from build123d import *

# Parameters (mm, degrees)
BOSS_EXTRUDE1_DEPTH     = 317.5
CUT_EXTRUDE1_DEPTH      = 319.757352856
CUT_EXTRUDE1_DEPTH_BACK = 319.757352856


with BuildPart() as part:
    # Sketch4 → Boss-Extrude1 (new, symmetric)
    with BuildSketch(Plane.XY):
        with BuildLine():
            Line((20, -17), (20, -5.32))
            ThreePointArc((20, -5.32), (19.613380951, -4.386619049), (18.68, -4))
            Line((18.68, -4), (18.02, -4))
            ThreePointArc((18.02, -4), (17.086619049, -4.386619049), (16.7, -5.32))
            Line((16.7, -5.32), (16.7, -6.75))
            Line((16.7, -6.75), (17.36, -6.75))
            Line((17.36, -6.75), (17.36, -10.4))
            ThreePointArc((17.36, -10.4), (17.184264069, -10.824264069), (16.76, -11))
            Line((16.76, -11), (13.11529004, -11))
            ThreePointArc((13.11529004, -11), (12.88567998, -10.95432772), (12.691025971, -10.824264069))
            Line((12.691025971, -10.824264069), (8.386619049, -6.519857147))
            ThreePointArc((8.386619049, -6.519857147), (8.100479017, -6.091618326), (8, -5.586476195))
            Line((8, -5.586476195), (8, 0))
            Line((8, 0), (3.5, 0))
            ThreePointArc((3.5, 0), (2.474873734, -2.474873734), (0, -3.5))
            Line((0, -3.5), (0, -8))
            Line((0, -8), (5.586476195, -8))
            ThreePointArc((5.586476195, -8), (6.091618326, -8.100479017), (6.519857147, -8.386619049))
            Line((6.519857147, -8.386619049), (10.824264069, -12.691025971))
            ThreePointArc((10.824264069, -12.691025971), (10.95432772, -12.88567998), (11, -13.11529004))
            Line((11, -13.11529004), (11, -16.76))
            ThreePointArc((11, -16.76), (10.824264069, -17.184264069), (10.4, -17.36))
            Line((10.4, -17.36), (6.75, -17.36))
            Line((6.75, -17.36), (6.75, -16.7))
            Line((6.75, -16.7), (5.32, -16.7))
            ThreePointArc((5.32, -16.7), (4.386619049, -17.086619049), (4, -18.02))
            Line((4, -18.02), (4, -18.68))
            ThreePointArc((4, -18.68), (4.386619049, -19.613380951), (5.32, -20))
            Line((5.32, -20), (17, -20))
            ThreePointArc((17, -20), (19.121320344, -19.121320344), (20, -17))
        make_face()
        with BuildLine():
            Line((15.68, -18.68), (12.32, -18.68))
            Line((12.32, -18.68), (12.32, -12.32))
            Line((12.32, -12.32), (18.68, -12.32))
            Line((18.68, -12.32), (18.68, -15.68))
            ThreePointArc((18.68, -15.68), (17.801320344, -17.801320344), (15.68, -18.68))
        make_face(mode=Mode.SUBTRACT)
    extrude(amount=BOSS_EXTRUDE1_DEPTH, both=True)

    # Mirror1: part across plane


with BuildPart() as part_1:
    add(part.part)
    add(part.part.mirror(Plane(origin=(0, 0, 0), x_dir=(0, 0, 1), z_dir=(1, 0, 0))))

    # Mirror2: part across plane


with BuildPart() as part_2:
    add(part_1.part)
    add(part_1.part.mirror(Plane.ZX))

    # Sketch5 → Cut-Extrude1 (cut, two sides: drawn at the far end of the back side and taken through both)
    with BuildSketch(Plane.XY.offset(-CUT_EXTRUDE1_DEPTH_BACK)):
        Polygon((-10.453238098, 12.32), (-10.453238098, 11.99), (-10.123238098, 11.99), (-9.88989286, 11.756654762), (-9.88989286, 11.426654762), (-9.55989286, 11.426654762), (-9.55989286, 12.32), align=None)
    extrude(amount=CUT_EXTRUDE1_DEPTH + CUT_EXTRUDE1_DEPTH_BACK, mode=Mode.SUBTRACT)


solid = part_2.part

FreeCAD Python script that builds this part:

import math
import FreeCAD as App
import Part
import Sketcher
from FreeCAD import Vector
Q = App.Units.Quantity

doc = App.newDocument("Part")
params = doc.addObject("Spreadsheet::Sheet", "Params")
for row, (alias, value) in enumerate([
    ("sketch1_radius", "3 mm"),
    ("sketch1_radius2", "0.6 mm"),
    ("sketch1_radius3", "3.5 mm"),
    ("sketch1_radius4", "1.32 mm"),
    ("sketch1_width", "4.5 mm"),
    ("pad1_length", "635 mm"),
    ("sketch2_width", "0.33 mm"),
    ("sketch2_length", "0.33 mm"),
], start=1):
    params.set(f"A{row}", alias)
    params.set(f"B{row}", "=" + value)
    params.setAlias(f"B{row}", alias)

body = doc.addObject("PartDesign::Body", "Body")

# Sketch on XY plane
sketch1 = body.newObject("Sketcher::SketchObject", "Sketch")
sketch1.AttachmentSupport = (doc.getObject("XY_Plane"), [""])
sketch1.MapMode = "FlatFace"
sketch1.addGeometry([
    Part.LineSegment(Vector(20, -17, 0), Vector(20, -5.32, 0)),  # 0
    Part.ArcOfCircle(Part.Circle(Vector(18.68, -5.32, 0), Vector(0, 0, 1), 1.32), math.radians(0), math.radians(90)),  # 1
    Part.LineSegment(Vector(18.68, -4, 0), Vector(18.02, -4, 0)),  # 2
    Part.ArcOfCircle(Part.Circle(Vector(18.02, -5.32, 0), Vector(0, 0, 1), 1.32), math.radians(90), math.radians(180)),  # 3
    Part.LineSegment(Vector(16.7, -5.32, 0), Vector(16.7, -6.75, 0)),  # 4
    Part.LineSegment(Vector(16.7, -6.75, 0), Vector(17.36, -6.75, 0)),  # 5
    Part.LineSegment(Vector(17.36, -6.75, 0), Vector(17.36, -10.4, 0)),  # 6
    Part.ArcOfCircle(Part.Circle(Vector(16.76, -10.4, 0), Vector(0, 0, 1), 0.6), math.radians(-90), math.radians(0)),  # 7
    Part.LineSegment(Vector(16.76, -11, 0), Vector(13.12, -11, 0)),  # 8
    Part.ArcOfCircle(Part.Circle(Vector(13.12, -10.4, 0), Vector(0, 0, 1), 0.6), math.radians(-135), math.radians(-90)),  # 9
    Part.LineSegment(Vector(12.69, -10.82, 0), Vector(8.39, -6.52, 0)),  # 10
    Part.ArcOfCircle(Part.Circle(Vector(9.32, -5.59, 0), Vector(0, 0, 1), 1.32), math.radians(180), math.radians(225)),  # 11
    Part.LineSegment(Vector(8, -5.59, 0), Vector(8, 0, 0)),  # 12
    Part.LineSegment(Vector(8, 0, 0), Vector(3.5, 0, 0)),  # 13
    Part.ArcOfCircle(Part.Circle(Vector(0, 0, 0), Vector(0, 0, 1), 3.5), math.radians(-90), math.radians(0)),  # 14
    Part.LineSegment(Vector(0, -3.5, 0), Vector(0, -8, 0)),  # 15
    Part.LineSegment(Vector(0, -8, 0), Vector(5.59, -8, 0)),  # 16
    Part.ArcOfCircle(Part.Circle(Vector(5.59, -9.32, 0), Vector(0, 0, 1), 1.32), math.radians(45), math.radians(90)),  # 17
    Part.LineSegment(Vector(6.52, -8.39, 0), Vector(10.82, -12.69, 0)),  # 18
    Part.ArcOfCircle(Part.Circle(Vector(10.4, -13.12, 0), Vector(0, 0, 1), 0.6), math.radians(0), math.radians(45)),  # 19
    Part.LineSegment(Vector(11, -13.12, 0), Vector(11, -16.76, 0)),  # 20
    Part.ArcOfCircle(Part.Circle(Vector(10.4, -16.76, 0), Vector(0, 0, 1), 0.6), math.radians(-90), math.radians(0)),  # 21
    Part.LineSegment(Vector(10.4, -17.36, 0), Vector(6.75, -17.36, 0)),  # 22
    Part.LineSegment(Vector(6.75, -17.36, 0), Vector(6.75, -16.7, 0)),  # 23
    Part.LineSegment(Vector(6.75, -16.7, 0), Vector(5.32, -16.7, 0)),  # 24
    Part.ArcOfCircle(Part.Circle(Vector(5.32, -18.02, 0), Vector(0, 0, 1), 1.32), math.radians(90), math.radians(180)),  # 25
    Part.LineSegment(Vector(4, -18.02, 0), Vector(4, -18.68, 0)),  # 26
    Part.ArcOfCircle(Part.Circle(Vector(5.32, -18.68, 0), Vector(0, 0, 1), 1.32), math.radians(-180), math.radians(-90)),  # 27
    Part.LineSegment(Vector(5.32, -20, 0), Vector(17, -20, 0)),  # 28
    Part.ArcOfCircle(Part.Circle(Vector(17, -17, 0), Vector(0, 0, 1), 3), math.radians(-90), math.radians(0)),  # 29
    Part.ArcOfCircle(Part.Circle(Vector(15.68, -15.68, 0), Vector(0, 0, 1), 3), math.radians(-90), math.radians(0)),  # 30
    Part.LineSegment(Vector(15.68, -18.68, 0), Vector(12.32, -18.68, 0)),  # 31
    Part.LineSegment(Vector(12.32, -18.68, 0), Vector(12.32, -12.32, 0)),  # 32
    Part.LineSegment(Vector(12.32, -12.32, 0), Vector(18.68, -12.32, 0)),  # 33
    Part.LineSegment(Vector(18.68, -12.32, 0), Vector(18.68, -15.68, 0)),  # 34
], False)
sketch1.addConstraint([
    Sketcher.Constraint("Tangent", 0, 2, 1, 1),
    Sketcher.Constraint("Tangent", 1, 2, 2, 1),
    Sketcher.Constraint("Tangent", 2, 2, 3, 1),
    Sketcher.Constraint("Tangent", 3, 2, 4, 1),
    Sketcher.Constraint("Coincident", 4, 2, 5, 1),
    Sketcher.Constraint("Coincident", 5, 2, 6, 1),
    Sketcher.Constraint("Tangent", 6, 2, 7, 2),
    Sketcher.Constraint("Tangent", 7, 1, 8, 1),
    Sketcher.Constraint("Tangent", 8, 2, 9, 2),
    Sketcher.Constraint("Tangent", 9, 1, 10, 1),
    Sketcher.Constraint("Tangent", 10, 2, 11, 2),
    Sketcher.Constraint("Tangent", 11, 1, 12, 1),
    Sketcher.Constraint("Coincident", 12, 2, 13, 1),
    Sketcher.Constraint("Coincident", 13, 2, 14, 2),
    Sketcher.Constraint("Coincident", 14, 1, 15, 1),
    Sketcher.Constraint("Coincident", 15, 2, 16, 1),
    Sketcher.Constraint("Tangent", 16, 2, 17, 2),
    Sketcher.Constraint("Tangent", 17, 1, 18, 1),
    Sketcher.Constraint("Tangent", 18, 2, 19, 2),
    Sketcher.Constraint("Tangent", 19, 1, 20, 1),
    Sketcher.Constraint("Tangent", 20, 2, 21, 2),
    Sketcher.Constraint("Tangent", 21, 1, 22, 1),
    Sketcher.Constraint("Coincident", 22, 2, 23, 1),
    Sketcher.Constraint("Coincident", 23, 2, 24, 1),
    Sketcher.Constraint("Tangent", 24, 2, 25, 1),
    Sketcher.Constraint("Tangent", 25, 2, 26, 1),
    Sketcher.Constraint("Tangent", 26, 2, 27, 1),
    Sketcher.Constraint("Tangent", 27, 2, 28, 1),
    Sketcher.Constraint("Tangent", 28, 2, 29, 1),
    Sketcher.Constraint("Tangent", 29, 2, 0, 1),
    Sketcher.Constraint("Tangent", 30, 1, 31, 1),
    Sketcher.Constraint("Coincident", 31, 2, 32, 1),
    Sketcher.Constraint("Coincident", 32, 2, 33, 1),
    Sketcher.Constraint("Coincident", 33, 2, 34, 1),
    Sketcher.Constraint("Tangent", 34, 2, 30, 2),
    Sketcher.Constraint("Vertical", 0),
    Sketcher.Constraint("Horizontal", 2),
    Sketcher.Constraint("Vertical", 4),
    Sketcher.Constraint("Horizontal", 5),
    Sketcher.Constraint("Vertical", 6),
    Sketcher.Constraint("Horizontal", 8),
    Sketcher.Constraint("Vertical", 12),
    Sketcher.Constraint("Horizontal", 13),
    Sketcher.Constraint("Vertical", 15),
    Sketcher.Constraint("Horizontal", 16),
    Sketcher.Constraint("Vertical", 20),
    Sketcher.Constraint("Horizontal", 22),
    Sketcher.Constraint("Vertical", 23),
    Sketcher.Constraint("Horizontal", 24),
    Sketcher.Constraint("Vertical", 26),
    Sketcher.Constraint("Horizontal", 28),
    Sketcher.Constraint("Horizontal", 31),
    Sketcher.Constraint("Vertical", 32),
    Sketcher.Constraint("Horizontal", 33),
    Sketcher.Constraint("Vertical", 34),
    Sketcher.Constraint("Coincident", 14, 3, -1, 1),
    Sketcher.Constraint("Equal", 1, 3),
    Sketcher.Constraint("Equal", 7, 9),
    Sketcher.Constraint("Equal", 3, 11),
    Sketcher.Constraint("Equal", 11, 17),
    Sketcher.Constraint("Equal", 9, 19),
    Sketcher.Constraint("Equal", 19, 21),
    Sketcher.Constraint("Equal", 17, 25),
    Sketcher.Constraint("Equal", 25, 27),
    Sketcher.Constraint("Equal", 29, 30),
    Sketcher.Constraint("PointOnObject", 12, 2, -1),
    Sketcher.Constraint("PointOnObject", 14, 1, -2),
    Sketcher.Constraint("Parallel", 10, 18),
    Sketcher.Constraint("Horizontal", 26, 2, 30, 1),
    Sketcher.Constraint("Vertical", 1, 2, 33, 2),
    Sketcher.Constraint("Equal", 2, 5),
    Sketcher.Constraint("Equal", 28, 0),
    Sketcher.Constraint("Equal", 24, 4),
    Sketcher.Constraint("Equal", 22, 6),
    Sketcher.Constraint("Equal", 16, 12),
    Sketcher.Constraint("Equal", 13, 15),
    Sketcher.Constraint("Equal", 8, 20),
    Sketcher.Constraint("Equal", 5, 23),
    Sketcher.Constraint("Equal", 23, 26),
    Sketcher.Constraint("Equal", 33, 32),
    Sketcher.Constraint("Equal", 10, 18),
    Sketcher.Constraint("Radius", 29, Q("3 mm")),
    Sketcher.Constraint("Radius", 7, Q("0.6 mm")),
    Sketcher.Constraint("Radius", 14, Q("3.5 mm")),
    Sketcher.Constraint("Radius", 1, Q("1.32 mm")),
    Sketcher.Constraint("DistanceX", 13, 2, 13, 1, Q("4.5 mm")),
    Sketcher.Constraint("DistanceX", -1, 1, 29, 3, Q("17 mm")),
    Sketcher.Constraint("DistanceY", 1, 2, -1, 1, Q("4 mm")),
    Sketcher.Constraint("DistanceY", 7, 1, -1, 1, Q("11 mm")),
    Sketcher.Constraint("DistanceX", 2, 2, 2, 1, Q("0.66 mm")),
    Sketcher.Constraint("DistanceX", 22, 2, 22, 1, Q("3.65 mm")),
    Sketcher.Constraint("DistanceX", 31, 2, 31, 1, Q("3.36 mm")),
    Sketcher.Constraint("DistanceX", 8, 2, 8, 1, Q("3.64471 mm")),
])
sketch1.setExpression("Constraints[81]", "Params.sketch1_radius")
sketch1.setExpression("Constraints[82]", "Params.sketch1_radius2")
sketch1.setExpression("Constraints[83]", "Params.sketch1_radius3")
sketch1.setExpression("Constraints[84]", "Params.sketch1_radius4")
sketch1.setExpression("Constraints[85]", "Params.sketch1_width")
pad1 = body.newObject("PartDesign::Pad", "Pad")
pad1.Profile = sketch1
pad1.setExpression("Length", "Params.pad1_length")
pad1.Midplane = True
body2 = doc.addObject("PartDesign::Body", "Body001")
doc.recompute()

body2.BaseFeature = body
doc.recompute()

mirroring = doc.addObject("Part::Mirroring", "Mirroring")
mirroring.Source = body
mirroring.Base = Vector(0, 0, 0)
mirroring.Normal = Vector(1, 0, 0)
body3 = doc.addObject("PartDesign::Body", "Body002")
body3.BaseFeature = mirroring
boolean = body2.newObject("PartDesign::Boolean", "Boolean")
boolean.Type = "Fuse"
boolean.addObjects([body3])
doc.recompute()
body4 = doc.addObject("PartDesign::Body", "Body003")
doc.recompute()

body4.BaseFeature = body2
doc.recompute()

mirroring2 = doc.addObject("Part::Mirroring", "Mirroring001")
mirroring2.Source = body2
mirroring2.Base = Vector(0, 0, 0)
mirroring2.Normal = Vector(0, 1, 0)
body5 = doc.addObject("PartDesign::Body", "Body004")
body5.BaseFeature = mirroring2
boolean2 = body4.newObject("PartDesign::Boolean", "Boolean001")
boolean2.Type = "Fuse"
boolean2.addObjects([body5])
doc.recompute()

# Sketch on XY plane
sketch2 = body4.newObject("Sketcher::SketchObject", "Sketch001")
sketch2.AttachmentSupport = (doc.getObject("XY_Plane003"), [""])
sketch2.MapMode = "FlatFace"
sketch2.addGeometry([
    Part.LineSegment(Vector(-10.45, 12.32, 0), Vector(-10.45, 11.99, 0)),  # 0
    Part.LineSegment(Vector(-10.45, 11.99, 0), Vector(-10.12, 11.99, 0)),  # 1
    Part.LineSegment(Vector(-10.12, 11.99, 0), Vector(-9.89, 11.76, 0)),  # 2
    Part.LineSegment(Vector(-9.89, 11.76, 0), Vector(-9.89, 11.43, 0)),  # 3
    Part.LineSegment(Vector(-9.89, 11.43, 0), Vector(-9.56, 11.43, 0)),  # 4
    Part.LineSegment(Vector(-9.56, 11.43, 0), Vector(-9.56, 12.32, 0)),  # 5
    Part.LineSegment(Vector(-9.56, 12.32, 0), Vector(-10.45, 12.32, 0)),  # 6
], False)
sketch2.addConstraint([
    Sketcher.Constraint("Coincident", 0, 2, 1, 1),
    Sketcher.Constraint("Coincident", 1, 2, 2, 1),
    Sketcher.Constraint("Coincident", 2, 2, 3, 1),
    Sketcher.Constraint("Coincident", 3, 2, 4, 1),
    Sketcher.Constraint("Coincident", 4, 2, 5, 1),
    Sketcher.Constraint("Coincident", 5, 2, 6, 1),
    Sketcher.Constraint("Coincident", 6, 2, 0, 1),
    Sketcher.Constraint("Vertical", 0),
    Sketcher.Constraint("Horizontal", 1),
    Sketcher.Constraint("Vertical", 3),
    Sketcher.Constraint("Horizontal", 4),
    Sketcher.Constraint("Vertical", 5),
    Sketcher.Constraint("Horizontal", 6),
    Sketcher.Constraint("Equal", 1, 4),
    Sketcher.Constraint("Equal", 4, 0),
    Sketcher.Constraint("Equal", 0, 3),
    Sketcher.Constraint("Equal", 6, 5),
    Sketcher.Constraint("DistanceX", 1, 1, 1, 2, Q("0.33 mm")),
    Sketcher.Constraint("Distance", 2, Q("0.33 mm")),
    Sketcher.Constraint("DistanceY", -1, 1, 0, 2, Q("11.99 mm")),
    Sketcher.Constraint("DistanceX", 0, 2, -1, 1, Q("10.453238 mm")),
])
sketch2.setExpression("Constraints[17]", "Params.sketch2_width")
sketch2.setExpression("Constraints[18]", "Params.sketch2_length")
pocket1 = body4.newObject("PartDesign::Pocket", "Pocket")
pocket1.Profile = sketch2
pocket1.Type = "ThroughAll"
pocket1.Midplane = True
mirroring.Visibility = False
mirroring2.Visibility = False

doc.recompute()
